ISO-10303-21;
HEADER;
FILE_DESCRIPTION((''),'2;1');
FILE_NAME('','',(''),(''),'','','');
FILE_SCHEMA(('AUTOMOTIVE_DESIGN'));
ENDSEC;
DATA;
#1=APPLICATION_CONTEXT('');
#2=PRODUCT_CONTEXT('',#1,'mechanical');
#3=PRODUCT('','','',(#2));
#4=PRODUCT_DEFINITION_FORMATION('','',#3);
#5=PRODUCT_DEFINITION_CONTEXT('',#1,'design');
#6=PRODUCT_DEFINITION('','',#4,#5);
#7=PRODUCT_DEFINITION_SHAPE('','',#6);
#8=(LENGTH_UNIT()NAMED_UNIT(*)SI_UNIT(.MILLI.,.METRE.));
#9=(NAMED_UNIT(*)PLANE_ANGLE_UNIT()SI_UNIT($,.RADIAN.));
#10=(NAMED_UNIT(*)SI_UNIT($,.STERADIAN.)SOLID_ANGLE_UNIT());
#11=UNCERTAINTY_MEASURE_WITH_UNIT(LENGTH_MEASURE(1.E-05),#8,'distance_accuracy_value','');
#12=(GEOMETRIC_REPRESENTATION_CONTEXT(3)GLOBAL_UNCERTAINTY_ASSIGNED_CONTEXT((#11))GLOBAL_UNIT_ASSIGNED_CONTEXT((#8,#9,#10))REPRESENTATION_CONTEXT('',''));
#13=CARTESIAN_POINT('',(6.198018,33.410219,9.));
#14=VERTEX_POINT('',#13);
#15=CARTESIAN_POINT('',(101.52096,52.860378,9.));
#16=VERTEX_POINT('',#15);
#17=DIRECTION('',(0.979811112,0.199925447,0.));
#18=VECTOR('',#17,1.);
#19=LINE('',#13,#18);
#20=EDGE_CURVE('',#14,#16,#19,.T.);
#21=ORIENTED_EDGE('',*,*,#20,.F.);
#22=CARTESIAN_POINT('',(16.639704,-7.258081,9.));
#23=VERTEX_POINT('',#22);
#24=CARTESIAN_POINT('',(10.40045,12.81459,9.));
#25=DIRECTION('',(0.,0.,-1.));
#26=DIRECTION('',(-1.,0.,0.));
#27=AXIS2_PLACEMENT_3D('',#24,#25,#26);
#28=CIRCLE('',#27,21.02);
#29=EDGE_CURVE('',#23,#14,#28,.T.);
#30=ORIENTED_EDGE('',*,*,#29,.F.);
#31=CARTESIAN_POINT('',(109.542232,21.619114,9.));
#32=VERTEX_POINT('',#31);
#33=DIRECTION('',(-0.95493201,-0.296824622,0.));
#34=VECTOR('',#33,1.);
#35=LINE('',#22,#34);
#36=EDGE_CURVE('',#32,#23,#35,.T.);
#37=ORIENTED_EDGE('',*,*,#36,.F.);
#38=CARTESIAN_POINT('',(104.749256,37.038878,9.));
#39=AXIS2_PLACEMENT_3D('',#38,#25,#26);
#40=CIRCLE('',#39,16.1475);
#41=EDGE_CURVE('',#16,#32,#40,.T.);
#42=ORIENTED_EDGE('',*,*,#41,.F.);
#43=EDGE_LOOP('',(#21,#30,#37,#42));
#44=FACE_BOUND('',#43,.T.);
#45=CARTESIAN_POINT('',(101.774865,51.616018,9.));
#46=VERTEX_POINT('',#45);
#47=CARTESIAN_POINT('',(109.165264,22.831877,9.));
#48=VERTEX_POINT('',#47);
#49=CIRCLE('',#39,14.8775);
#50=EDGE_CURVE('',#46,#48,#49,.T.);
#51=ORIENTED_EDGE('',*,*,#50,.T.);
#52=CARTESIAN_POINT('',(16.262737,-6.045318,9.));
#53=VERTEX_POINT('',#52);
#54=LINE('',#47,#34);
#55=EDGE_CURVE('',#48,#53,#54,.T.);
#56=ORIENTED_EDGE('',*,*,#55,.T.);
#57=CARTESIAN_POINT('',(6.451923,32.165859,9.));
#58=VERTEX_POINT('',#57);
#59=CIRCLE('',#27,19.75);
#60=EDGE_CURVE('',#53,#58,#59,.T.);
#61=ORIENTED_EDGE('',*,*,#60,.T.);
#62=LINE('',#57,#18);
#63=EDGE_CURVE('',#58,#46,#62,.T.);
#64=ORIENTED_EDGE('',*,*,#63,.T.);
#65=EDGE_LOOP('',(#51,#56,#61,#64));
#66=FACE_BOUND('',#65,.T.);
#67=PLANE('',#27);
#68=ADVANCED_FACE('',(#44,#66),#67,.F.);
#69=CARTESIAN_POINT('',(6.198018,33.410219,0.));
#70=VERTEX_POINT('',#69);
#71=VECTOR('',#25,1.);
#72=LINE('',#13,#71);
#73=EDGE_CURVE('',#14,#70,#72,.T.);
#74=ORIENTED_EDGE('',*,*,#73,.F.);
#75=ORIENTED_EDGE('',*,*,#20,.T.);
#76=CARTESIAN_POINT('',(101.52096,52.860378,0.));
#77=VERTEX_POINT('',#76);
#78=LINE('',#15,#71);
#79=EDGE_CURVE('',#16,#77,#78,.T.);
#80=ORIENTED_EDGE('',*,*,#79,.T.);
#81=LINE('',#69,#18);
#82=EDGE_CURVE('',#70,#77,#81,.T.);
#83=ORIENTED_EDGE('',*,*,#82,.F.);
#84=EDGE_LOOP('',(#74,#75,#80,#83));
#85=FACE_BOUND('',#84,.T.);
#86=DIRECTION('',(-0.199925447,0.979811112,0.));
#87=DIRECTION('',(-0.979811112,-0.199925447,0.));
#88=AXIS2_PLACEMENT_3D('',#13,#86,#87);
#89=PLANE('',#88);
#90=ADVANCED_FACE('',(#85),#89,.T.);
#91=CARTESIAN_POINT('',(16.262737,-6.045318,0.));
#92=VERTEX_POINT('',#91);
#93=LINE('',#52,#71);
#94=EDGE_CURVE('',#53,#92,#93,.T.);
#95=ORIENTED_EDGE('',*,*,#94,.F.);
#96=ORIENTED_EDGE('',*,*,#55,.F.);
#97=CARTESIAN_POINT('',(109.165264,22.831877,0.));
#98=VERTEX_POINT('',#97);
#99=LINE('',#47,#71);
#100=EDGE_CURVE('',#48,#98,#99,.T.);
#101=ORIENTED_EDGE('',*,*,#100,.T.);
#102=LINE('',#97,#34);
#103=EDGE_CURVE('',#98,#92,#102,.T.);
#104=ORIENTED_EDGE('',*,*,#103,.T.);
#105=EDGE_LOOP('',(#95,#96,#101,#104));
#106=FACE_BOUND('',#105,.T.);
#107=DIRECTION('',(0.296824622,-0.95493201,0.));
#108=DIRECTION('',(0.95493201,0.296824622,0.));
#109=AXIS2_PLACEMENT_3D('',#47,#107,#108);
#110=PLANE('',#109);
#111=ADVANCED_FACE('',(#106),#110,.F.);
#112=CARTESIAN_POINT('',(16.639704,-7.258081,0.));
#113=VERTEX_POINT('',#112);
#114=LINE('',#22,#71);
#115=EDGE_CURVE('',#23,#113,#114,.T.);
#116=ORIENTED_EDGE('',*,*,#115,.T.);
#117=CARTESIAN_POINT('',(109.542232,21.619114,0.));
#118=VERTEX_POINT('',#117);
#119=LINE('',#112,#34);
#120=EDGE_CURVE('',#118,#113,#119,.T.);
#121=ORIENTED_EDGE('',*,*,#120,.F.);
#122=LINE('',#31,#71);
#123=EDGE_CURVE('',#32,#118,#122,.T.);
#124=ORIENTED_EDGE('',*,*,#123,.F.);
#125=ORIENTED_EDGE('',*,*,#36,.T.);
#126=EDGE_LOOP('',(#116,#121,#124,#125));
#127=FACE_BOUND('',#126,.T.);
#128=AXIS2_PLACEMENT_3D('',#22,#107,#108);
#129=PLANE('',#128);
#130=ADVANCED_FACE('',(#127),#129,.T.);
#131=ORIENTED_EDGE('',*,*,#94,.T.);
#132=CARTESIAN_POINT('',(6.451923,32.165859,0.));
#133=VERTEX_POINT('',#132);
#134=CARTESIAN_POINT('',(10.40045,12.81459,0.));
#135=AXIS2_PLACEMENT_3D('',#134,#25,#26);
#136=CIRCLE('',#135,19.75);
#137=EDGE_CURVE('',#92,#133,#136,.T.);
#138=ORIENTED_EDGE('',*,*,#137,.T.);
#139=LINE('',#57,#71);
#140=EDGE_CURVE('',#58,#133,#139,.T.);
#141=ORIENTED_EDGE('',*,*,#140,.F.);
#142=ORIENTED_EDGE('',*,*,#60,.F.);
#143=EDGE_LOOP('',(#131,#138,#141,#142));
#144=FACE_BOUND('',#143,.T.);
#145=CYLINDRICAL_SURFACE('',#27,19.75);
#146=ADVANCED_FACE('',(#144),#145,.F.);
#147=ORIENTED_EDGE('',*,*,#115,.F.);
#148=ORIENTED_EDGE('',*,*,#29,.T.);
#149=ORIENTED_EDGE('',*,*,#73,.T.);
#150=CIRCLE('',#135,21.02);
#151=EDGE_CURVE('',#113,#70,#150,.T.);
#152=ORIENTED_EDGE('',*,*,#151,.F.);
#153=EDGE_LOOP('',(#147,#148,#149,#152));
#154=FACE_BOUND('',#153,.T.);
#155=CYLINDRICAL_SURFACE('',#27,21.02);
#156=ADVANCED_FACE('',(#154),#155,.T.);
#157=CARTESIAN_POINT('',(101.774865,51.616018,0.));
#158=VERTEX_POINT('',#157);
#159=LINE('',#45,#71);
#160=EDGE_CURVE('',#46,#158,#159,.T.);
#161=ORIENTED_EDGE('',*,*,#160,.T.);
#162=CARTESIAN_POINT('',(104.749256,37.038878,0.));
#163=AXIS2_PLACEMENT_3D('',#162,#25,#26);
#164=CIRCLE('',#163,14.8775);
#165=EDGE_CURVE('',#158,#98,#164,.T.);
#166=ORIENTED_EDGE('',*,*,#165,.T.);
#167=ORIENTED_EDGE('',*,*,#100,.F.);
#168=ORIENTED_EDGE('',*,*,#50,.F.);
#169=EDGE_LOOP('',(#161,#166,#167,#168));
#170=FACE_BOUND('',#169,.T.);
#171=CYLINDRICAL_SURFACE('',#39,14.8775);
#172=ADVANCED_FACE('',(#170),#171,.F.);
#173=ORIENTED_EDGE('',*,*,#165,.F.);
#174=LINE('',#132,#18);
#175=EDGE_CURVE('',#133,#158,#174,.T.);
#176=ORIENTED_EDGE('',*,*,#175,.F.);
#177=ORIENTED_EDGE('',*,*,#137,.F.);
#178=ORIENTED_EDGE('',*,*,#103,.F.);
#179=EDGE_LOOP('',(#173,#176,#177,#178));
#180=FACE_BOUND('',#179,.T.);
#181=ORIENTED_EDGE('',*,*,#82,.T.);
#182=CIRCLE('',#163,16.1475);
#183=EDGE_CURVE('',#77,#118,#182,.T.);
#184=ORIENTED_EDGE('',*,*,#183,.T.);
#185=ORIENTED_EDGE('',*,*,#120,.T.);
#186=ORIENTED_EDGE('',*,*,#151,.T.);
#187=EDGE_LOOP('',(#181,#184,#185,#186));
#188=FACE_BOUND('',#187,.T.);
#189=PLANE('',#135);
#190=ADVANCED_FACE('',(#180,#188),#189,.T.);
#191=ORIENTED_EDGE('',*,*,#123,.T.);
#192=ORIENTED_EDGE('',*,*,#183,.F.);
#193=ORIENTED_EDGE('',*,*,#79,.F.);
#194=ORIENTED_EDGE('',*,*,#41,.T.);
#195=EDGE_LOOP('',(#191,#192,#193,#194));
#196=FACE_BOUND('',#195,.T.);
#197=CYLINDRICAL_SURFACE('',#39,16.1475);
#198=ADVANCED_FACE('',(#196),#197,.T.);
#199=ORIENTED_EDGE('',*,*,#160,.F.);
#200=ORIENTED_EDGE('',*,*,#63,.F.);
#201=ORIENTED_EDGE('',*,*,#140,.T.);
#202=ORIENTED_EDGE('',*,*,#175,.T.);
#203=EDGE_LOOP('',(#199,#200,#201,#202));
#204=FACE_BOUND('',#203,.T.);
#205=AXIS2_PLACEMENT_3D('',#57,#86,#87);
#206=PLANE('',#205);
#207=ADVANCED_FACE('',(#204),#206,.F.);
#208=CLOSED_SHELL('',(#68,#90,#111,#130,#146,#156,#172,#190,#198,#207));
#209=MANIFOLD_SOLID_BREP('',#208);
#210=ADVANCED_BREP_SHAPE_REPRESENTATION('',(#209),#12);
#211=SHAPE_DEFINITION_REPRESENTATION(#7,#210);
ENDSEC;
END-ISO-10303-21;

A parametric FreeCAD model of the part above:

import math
import FreeCAD as App
import Part
import Sketcher

doc = App.newDocument("Part")
body = doc.addObject("PartDesign::Body", "Body")

# Sketch on XY plane
sketch1 = body.newObject("Sketcher::SketchObject", "Sketch")
sketch1.AttachmentSupport = (doc.getObject("XY_Plane"), [""])
sketch1.MapMode = "FlatFace"
sketch1.addGeometry(Part.LineSegment(App.Vector(16.639704, -7.258081, 0), App.Vector(109.542232, 21.619114, 0)), False)
sketch1.addGeometry(Part.ArcOfCircle(Part.Circle(App.Vector(104.749256, 37.038878, 0), App.Vector(0, 0, 1), 16.1475), math.radians(-72.733018), math.radians(101.532599)), False)
sketch1.addGeometry(Part.LineSegment(App.Vector(101.52096, 52.860378, 0), App.Vector(6.198018, 33.410219, 0)), False)
sketch1.addGeometry(Part.ArcOfCircle(Part.Circle(App.Vector(10.40045, 12.81459, 0), App.Vector(0, 0, 1), 21.02), math.radians(101.532599), math.radians(287.266982)), False)
sketch1.addGeometry(Part.LineSegment(App.Vector(109.165264, 22.831877, 0), App.Vector(16.262737, -6.045318, 0)), False)
sketch1.addGeometry(Part.ArcOfCircle(Part.Circle(App.Vector(10.40045, 12.81459, 0), App.Vector(0, 0, 1), 19.75), math.radians(101.532599), math.radians(287.266982)), False)
sketch1.addGeometry(Part.LineSegment(App.Vector(6.451923, 32.165859, 0), App.Vector(101.774865, 51.616018, 0)), False)
sketch1.addGeometry(Part.ArcOfCircle(Part.Circle(App.Vector(104.749256, 37.038878, 0), App.Vector(0, 0, 1), 14.8775), math.radians(-72.733018), math.radians(101.532599)), False)
sketch1.addConstraint(Sketcher.Constraint("Tangent", 0, 2, 1, 1))
sketch1.addConstraint(Sketcher.Constraint("Tangent", 1, 2, 2, 1))
sketch1.addConstraint(Sketcher.Constraint("Tangent", 2, 2, 3, 1))
sketch1.addConstraint(Sketcher.Constraint("Tangent", 3, 2, 0, 1))
sketch1.addConstraint(Sketcher.Constraint("Tangent", 4, 2, 5, 2))
sketch1.addConstraint(Sketcher.Constraint("Tangent", 5, 1, 6, 1))
sketch1.addConstraint(Sketcher.Constraint("Tangent", 6, 2, 7, 2))
sketch1.addConstraint(Sketcher.Constraint("Tangent", 7, 1, 4, 1))
sketch1.addConstraint(Sketcher.Constraint("Coincident", 5, 3, 3, 3))
sketch1.addConstraint(Sketcher.Constraint("Coincident", 7, 3, 1, 3))
sketch1.addConstraint(Sketcher.Constraint("Parallel", 0, 4))
sketch1.addConstraint(Sketcher.Constraint("Radius", 3, 21.02))
sketch1.addConstraint(Sketcher.Constraint("Radius", 5, 19.75))
sketch1.addConstraint(Sketcher.Constraint("Radius", 1, 16.1475))
sketch1.addConstraint(Sketcher.Constraint("DistanceY", 7, 1, 1, 3, 14.207001))
sketch1.addConstraint(Sketcher.Constraint("Distance", 0, 97.28706))
sketch1.addConstraint(Sketcher.Constraint("DistanceY", -1, 1, 1, 3, 37.038878))
sketch1.addConstraint(Sketcher.Constraint("DistanceX", -1, 1, 3, 3, 10.40045))
pad1 = body.newObject("PartDesign::Pad", "Pad")
pad1.Profile = sketch1
pad1.Length = 9

doc.recompute()
